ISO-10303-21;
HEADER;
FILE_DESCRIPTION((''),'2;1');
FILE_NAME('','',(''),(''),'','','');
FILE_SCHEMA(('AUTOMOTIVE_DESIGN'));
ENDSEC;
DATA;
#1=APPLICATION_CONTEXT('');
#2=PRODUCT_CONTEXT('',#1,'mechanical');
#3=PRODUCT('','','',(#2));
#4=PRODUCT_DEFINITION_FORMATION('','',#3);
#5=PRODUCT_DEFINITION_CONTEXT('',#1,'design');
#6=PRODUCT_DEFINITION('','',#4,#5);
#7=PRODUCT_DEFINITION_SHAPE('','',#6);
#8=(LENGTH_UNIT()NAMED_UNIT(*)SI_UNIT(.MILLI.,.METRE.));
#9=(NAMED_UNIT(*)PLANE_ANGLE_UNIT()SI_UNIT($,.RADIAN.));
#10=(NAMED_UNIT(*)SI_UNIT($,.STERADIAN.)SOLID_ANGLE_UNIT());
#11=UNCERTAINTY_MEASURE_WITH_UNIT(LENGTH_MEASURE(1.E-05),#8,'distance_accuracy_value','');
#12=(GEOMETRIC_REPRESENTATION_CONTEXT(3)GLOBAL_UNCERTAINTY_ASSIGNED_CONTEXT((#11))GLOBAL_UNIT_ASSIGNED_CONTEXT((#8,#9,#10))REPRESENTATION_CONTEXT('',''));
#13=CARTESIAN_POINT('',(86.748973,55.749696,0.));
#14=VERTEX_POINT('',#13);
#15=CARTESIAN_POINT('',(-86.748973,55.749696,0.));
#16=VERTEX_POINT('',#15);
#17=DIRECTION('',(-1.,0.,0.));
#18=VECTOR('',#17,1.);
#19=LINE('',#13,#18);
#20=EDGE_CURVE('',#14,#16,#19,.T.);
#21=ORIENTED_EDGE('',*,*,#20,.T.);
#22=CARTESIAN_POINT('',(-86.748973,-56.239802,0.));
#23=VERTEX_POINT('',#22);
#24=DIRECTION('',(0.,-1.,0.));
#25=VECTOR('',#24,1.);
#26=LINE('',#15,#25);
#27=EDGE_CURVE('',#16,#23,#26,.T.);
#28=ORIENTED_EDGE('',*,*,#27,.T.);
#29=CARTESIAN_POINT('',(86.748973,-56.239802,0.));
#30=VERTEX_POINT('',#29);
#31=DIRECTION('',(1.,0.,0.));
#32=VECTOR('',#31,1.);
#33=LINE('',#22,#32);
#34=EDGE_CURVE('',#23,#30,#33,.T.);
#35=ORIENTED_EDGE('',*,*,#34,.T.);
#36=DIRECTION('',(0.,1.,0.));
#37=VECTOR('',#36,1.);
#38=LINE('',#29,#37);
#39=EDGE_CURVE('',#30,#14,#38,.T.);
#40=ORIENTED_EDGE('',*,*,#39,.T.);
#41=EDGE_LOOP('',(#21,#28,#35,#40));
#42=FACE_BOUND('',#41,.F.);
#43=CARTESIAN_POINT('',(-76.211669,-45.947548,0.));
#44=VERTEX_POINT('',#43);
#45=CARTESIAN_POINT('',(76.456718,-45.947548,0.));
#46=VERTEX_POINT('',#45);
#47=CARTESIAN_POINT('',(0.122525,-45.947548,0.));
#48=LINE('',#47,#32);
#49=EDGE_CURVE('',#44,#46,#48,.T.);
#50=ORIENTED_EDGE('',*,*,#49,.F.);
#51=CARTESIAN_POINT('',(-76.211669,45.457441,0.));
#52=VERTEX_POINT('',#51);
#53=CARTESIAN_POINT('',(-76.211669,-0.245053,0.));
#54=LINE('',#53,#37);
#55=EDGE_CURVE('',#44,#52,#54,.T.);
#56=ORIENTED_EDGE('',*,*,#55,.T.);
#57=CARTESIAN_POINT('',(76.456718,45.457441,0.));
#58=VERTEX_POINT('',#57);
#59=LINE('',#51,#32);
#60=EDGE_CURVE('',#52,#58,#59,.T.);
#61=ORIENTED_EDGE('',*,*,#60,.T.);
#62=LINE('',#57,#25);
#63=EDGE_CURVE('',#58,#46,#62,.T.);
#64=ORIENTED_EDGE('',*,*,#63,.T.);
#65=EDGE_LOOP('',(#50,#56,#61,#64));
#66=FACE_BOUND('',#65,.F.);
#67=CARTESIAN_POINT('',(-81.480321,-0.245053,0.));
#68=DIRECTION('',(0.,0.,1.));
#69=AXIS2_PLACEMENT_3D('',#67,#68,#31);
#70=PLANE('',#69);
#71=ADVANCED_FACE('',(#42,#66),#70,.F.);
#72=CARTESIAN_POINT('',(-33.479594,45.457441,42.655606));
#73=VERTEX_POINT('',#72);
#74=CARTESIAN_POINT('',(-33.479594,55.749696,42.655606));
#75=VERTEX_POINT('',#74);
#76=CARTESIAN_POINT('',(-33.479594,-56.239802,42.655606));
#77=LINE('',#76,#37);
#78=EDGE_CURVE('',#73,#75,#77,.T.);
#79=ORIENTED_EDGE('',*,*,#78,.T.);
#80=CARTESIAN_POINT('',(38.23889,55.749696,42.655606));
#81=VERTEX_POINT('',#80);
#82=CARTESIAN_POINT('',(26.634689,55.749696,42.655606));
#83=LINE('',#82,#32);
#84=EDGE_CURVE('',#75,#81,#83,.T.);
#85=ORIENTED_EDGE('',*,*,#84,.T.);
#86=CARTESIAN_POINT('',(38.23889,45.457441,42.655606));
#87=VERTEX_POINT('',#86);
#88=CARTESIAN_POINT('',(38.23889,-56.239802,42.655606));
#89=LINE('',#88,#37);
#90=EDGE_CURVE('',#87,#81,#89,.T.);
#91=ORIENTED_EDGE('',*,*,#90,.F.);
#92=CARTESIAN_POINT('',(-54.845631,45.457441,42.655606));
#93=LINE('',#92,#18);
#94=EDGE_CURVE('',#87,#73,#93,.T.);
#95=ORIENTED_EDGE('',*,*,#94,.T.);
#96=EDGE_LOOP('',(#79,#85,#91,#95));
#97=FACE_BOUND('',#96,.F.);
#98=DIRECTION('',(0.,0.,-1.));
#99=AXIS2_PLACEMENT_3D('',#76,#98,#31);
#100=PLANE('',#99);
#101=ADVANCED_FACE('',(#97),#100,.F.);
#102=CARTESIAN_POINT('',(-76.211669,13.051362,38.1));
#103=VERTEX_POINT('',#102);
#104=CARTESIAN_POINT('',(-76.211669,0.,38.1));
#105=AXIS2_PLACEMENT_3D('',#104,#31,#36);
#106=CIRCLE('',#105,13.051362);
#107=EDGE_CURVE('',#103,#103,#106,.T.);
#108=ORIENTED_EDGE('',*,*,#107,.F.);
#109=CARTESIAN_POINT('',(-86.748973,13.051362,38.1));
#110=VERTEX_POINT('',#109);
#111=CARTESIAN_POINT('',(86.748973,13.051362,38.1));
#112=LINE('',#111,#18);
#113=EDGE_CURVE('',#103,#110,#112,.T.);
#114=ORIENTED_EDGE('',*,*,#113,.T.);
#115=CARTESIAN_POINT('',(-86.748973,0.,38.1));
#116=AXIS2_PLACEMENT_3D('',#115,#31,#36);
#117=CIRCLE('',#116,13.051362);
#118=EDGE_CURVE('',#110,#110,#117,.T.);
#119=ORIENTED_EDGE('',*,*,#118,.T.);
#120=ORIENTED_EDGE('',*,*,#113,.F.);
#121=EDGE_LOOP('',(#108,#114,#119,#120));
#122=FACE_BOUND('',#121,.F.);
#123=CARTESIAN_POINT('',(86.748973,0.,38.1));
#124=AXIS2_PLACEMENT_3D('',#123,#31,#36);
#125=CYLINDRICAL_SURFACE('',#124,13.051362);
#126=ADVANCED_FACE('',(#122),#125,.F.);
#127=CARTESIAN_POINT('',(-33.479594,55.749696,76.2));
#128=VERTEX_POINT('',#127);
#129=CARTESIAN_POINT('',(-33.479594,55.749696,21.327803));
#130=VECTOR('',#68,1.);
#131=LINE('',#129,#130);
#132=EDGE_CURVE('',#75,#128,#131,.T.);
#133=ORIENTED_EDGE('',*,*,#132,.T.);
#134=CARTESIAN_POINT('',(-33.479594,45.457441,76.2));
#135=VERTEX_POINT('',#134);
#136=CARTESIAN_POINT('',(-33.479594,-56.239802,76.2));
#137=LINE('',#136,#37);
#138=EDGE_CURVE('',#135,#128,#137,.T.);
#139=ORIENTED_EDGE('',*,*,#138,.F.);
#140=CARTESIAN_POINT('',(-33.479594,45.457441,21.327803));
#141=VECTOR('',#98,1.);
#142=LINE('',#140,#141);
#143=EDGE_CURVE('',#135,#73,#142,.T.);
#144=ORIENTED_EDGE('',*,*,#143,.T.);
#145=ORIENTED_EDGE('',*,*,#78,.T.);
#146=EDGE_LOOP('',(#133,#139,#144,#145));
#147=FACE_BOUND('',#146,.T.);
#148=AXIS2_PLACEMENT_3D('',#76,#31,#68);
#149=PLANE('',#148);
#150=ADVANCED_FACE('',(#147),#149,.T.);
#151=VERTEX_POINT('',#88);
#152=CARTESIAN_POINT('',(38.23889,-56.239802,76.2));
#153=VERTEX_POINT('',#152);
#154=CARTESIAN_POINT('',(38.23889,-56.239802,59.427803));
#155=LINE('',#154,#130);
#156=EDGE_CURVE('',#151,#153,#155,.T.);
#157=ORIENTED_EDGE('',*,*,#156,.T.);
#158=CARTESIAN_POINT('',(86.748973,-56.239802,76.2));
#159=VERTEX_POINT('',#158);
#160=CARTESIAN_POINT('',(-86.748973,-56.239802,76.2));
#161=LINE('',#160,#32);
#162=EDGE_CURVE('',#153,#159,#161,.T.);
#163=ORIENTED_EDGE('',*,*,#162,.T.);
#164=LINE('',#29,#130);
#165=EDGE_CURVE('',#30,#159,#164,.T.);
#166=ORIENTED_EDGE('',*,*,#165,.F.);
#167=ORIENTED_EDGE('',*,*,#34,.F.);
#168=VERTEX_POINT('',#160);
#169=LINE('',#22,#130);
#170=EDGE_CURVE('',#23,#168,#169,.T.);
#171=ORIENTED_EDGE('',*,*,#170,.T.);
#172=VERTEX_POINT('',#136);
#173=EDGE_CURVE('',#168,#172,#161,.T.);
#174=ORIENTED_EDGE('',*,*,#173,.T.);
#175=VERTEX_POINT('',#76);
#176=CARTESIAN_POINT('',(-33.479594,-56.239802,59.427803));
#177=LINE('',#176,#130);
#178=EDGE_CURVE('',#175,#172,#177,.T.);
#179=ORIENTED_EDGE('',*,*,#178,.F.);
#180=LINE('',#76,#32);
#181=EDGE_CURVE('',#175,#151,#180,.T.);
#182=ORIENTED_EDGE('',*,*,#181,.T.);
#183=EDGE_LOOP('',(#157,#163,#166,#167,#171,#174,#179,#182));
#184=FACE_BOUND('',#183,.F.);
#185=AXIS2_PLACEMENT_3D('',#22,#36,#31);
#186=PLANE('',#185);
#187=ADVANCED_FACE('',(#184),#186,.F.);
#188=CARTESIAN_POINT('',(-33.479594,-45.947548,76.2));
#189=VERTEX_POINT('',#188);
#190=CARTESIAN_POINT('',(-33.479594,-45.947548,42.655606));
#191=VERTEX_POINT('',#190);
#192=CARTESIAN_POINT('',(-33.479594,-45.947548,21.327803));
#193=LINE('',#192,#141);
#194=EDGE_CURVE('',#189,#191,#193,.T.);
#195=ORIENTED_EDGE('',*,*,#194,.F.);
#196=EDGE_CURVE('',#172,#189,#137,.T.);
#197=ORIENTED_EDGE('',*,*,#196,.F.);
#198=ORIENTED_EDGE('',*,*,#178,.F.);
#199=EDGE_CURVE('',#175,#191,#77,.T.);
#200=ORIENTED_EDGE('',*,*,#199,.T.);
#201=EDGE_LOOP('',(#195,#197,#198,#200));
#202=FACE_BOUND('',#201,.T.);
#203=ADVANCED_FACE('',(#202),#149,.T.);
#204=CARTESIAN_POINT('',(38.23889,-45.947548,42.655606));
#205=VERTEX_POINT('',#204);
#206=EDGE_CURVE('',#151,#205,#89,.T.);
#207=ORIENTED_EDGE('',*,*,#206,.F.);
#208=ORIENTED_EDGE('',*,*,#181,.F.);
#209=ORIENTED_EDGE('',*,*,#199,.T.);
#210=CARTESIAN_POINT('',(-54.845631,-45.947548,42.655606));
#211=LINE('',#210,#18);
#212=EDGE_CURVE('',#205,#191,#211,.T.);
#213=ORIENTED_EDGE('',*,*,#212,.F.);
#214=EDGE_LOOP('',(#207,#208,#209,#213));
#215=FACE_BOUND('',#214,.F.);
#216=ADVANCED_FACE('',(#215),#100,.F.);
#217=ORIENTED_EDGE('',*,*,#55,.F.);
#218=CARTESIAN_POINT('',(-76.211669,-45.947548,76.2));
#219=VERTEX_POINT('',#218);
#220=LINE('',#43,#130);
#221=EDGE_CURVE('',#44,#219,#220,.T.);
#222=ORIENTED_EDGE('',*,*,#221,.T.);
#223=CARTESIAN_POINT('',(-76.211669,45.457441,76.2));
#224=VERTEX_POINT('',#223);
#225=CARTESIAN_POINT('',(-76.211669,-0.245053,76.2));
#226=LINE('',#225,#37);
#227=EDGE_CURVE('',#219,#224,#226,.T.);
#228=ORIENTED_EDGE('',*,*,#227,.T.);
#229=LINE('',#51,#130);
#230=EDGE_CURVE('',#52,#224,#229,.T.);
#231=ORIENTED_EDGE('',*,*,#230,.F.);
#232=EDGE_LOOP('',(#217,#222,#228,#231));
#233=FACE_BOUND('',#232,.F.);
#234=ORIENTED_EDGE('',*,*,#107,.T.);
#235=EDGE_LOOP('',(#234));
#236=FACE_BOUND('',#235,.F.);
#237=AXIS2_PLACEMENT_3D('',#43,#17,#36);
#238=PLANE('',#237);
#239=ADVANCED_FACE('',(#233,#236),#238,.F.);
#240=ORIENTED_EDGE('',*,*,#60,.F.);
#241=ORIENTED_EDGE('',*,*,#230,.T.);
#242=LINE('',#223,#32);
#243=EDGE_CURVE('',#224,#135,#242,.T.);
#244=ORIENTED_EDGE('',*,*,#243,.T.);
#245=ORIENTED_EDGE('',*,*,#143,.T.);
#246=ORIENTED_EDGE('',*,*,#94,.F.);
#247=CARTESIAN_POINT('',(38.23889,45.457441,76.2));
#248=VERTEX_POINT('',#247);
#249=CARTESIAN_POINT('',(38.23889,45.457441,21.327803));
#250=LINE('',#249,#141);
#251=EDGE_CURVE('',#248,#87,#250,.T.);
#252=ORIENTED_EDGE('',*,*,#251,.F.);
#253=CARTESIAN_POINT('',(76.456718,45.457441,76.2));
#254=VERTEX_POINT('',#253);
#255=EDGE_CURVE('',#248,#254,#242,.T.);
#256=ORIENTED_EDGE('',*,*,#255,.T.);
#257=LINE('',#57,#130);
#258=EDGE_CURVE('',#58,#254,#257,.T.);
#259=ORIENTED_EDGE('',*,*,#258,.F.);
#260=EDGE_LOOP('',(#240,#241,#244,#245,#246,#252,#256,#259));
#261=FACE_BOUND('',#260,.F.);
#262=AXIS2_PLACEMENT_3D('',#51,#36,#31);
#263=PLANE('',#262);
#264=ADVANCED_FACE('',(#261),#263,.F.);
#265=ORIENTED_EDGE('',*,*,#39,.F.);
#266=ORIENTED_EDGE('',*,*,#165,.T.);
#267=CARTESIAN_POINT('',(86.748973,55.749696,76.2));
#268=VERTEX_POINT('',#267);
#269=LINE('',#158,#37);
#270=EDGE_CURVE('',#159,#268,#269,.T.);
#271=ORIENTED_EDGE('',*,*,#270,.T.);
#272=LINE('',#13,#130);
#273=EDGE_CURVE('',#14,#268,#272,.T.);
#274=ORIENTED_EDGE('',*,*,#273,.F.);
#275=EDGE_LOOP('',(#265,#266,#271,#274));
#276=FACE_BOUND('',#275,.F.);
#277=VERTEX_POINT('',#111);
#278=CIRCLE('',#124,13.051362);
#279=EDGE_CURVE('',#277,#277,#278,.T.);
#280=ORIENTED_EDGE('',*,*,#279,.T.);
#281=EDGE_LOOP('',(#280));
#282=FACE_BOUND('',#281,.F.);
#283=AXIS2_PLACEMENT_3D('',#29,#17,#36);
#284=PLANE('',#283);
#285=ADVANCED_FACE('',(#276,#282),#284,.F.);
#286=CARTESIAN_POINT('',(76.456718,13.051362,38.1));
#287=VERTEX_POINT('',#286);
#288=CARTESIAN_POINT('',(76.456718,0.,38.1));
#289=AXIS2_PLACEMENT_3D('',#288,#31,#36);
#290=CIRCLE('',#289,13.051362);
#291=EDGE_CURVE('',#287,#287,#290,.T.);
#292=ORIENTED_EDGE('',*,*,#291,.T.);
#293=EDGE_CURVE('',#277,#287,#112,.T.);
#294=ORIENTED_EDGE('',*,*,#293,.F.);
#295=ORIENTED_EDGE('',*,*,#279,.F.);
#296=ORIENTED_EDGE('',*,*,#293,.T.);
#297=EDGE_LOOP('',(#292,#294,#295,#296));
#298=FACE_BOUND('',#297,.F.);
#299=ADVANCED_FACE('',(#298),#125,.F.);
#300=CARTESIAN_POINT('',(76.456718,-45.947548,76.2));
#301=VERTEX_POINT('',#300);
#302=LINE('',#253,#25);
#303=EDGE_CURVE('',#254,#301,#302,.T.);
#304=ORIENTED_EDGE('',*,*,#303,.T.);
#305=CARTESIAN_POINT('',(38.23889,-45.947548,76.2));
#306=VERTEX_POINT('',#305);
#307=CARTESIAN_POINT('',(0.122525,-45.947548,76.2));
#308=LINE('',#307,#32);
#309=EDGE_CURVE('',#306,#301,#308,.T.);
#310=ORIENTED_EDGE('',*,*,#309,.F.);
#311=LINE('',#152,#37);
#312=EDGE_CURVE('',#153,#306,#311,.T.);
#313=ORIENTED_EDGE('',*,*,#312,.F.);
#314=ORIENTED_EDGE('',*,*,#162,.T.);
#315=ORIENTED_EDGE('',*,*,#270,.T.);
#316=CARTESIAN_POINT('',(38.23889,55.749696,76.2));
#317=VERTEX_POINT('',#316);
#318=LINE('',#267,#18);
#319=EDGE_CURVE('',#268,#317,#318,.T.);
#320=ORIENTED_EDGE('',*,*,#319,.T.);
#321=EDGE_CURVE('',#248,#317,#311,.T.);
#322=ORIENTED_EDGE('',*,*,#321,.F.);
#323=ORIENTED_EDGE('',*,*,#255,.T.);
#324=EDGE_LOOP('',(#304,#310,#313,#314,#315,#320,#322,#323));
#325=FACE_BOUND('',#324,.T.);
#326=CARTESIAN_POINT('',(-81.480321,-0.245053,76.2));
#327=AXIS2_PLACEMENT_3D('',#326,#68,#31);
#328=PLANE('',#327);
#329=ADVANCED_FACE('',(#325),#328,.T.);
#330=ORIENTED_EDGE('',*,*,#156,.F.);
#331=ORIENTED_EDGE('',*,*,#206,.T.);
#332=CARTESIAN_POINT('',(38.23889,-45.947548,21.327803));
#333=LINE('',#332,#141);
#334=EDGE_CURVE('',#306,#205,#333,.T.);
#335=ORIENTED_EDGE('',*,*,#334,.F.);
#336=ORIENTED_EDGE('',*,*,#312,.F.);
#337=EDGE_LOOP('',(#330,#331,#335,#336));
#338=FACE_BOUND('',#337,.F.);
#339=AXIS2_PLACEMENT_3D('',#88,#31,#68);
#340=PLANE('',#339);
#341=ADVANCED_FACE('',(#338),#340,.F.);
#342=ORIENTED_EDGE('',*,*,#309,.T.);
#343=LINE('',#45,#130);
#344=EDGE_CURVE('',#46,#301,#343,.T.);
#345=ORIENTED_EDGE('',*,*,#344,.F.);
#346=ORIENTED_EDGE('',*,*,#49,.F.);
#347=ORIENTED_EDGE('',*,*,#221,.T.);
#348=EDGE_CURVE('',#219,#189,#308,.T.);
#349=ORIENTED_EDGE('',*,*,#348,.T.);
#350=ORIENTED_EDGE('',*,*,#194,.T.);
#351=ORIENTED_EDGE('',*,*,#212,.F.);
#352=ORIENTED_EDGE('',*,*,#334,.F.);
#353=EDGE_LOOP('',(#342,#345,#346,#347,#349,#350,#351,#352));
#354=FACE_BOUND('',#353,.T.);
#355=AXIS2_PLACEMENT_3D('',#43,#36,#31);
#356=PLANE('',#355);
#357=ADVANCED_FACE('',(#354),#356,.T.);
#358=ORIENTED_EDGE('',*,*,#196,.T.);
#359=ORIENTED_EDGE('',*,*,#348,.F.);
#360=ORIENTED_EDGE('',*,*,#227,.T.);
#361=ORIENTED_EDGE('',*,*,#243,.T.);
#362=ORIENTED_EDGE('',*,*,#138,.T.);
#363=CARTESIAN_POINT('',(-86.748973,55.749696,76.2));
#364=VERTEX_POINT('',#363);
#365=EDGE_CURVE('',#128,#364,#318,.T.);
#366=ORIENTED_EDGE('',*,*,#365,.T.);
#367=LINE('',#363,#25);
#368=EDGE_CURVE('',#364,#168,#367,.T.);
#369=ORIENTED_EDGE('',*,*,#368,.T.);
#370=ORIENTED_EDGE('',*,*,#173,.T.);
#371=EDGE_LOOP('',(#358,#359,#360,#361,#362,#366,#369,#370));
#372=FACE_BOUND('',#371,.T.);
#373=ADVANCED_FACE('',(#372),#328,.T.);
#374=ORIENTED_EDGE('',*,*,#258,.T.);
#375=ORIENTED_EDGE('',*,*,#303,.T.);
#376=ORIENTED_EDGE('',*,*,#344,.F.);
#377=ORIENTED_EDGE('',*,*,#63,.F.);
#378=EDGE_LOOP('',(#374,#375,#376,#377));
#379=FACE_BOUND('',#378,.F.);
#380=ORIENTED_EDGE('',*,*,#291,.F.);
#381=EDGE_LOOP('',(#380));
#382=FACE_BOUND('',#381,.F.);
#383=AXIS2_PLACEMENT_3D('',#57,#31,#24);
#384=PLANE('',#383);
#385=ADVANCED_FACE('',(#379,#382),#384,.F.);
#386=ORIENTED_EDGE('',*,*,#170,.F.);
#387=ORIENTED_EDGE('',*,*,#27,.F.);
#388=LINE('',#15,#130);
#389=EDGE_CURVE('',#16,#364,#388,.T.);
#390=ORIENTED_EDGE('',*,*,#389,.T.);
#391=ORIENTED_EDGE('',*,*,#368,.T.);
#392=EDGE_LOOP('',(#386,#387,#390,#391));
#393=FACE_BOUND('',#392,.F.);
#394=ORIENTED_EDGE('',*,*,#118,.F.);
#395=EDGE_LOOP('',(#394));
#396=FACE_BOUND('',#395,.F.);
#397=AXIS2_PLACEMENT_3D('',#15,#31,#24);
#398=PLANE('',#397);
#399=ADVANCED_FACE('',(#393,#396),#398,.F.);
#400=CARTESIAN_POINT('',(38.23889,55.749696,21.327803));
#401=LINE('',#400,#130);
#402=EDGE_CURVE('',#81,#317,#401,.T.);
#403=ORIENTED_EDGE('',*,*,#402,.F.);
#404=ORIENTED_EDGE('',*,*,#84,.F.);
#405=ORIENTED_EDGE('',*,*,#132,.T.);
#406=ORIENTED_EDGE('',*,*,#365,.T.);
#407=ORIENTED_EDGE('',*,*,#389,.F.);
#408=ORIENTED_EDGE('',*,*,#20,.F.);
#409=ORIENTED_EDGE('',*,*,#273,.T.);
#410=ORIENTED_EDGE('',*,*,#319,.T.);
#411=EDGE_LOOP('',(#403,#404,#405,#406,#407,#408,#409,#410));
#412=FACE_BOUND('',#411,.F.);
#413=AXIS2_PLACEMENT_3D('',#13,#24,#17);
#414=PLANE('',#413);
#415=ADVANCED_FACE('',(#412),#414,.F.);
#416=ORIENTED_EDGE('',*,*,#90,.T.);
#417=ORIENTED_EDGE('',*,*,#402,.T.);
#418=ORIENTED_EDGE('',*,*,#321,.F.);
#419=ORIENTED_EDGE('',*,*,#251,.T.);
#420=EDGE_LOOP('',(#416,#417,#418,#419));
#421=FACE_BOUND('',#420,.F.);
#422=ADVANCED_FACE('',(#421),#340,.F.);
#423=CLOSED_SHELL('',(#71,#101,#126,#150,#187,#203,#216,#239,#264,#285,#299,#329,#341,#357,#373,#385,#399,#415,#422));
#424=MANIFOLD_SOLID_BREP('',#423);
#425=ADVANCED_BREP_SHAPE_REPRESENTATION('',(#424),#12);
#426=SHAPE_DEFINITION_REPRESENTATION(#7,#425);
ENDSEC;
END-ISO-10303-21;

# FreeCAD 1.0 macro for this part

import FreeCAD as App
import Part
import Sketcher
from FreeCAD import Vector
Q = App.Units.Quantity


def add_polygon(sketch, points):
    """Adds a closed chain of lines whose ends are joined by coincident constraints."""
    first, n = sketch.GeometryCount, len(points)
    for a, b in zip(points, points[1:] + points[:1]):
        sketch.addGeometry(Part.LineSegment(App.Vector(*a, 0), App.Vector(*b, 0)), False)
    for i in range(n):
        sketch.addConstraint(Sketcher.Constraint("Coincident", first + i, 2, first + (i + 1) % n, 1))

doc = App.newDocument("Part")
body = doc.addObject("PartDesign::Body", "Body")

sketch1 = body.newObject("Sketcher::SketchObject", "Sketch")
sketch1.AttachmentSupport = (doc.getObject("XY_Plane"), [""])
sketch1.MapMode = "FlatFace"
add_polygon(sketch1, [(-87, 56), (-87, -56), (87, -56), (87, 56)])
add_polygon(sketch1, [(76, -46), (-76, -46), (-76, 45), (76, 45)])
sketch1.addConstraint([
    Sketcher.Constraint("Vertical", 0),
    Sketcher.Constraint("Horizontal", 1),
    Sketcher.Constraint("Vertical", 2),
    Sketcher.Constraint("Horizontal", 3),
    Sketcher.Constraint("Horizontal", 4),
    Sketcher.Constraint("Vertical", 5),
    Sketcher.Constraint("Horizontal", 6),
    Sketcher.Constraint("Vertical", 7),
    Sketcher.Constraint("DistanceY", 0, 2, 0, 1, Q("111.989498 mm")),
    Sketcher.Constraint("DistanceY", 5, 1, 5, 2, Q("91.404989 mm")),
    Sketcher.Constraint("DistanceX", 1, 1, 1, 2, Q("173.497945 mm")),
    Sketcher.Constraint("DistanceX", 4, 2, 4, 1, Q("152.668387 mm")),
    Sketcher.Constraint("DistanceX", 4, 2, -1, 1, Q("76.211669 mm")),
    Sketcher.Constraint("DistanceY", 4, 2, -1, 1, Q("45.947548 mm")),
    Sketcher.Constraint("DistanceX", 4, 2, 1, 2, Q("162.960641 mm")),
    Sketcher.Constraint("DistanceY", 0, 2, -1, 1, Q("56.239802 mm")),
])
pad1 = body.newObject("PartDesign::Pad", "Pad")
pad1.Profile = sketch1
pad1.Length = Q("3 in")

sketch2 = body.newObject("Sketcher::SketchObject", "Sketch001")
sketch2.AttachmentSupport = (doc.getObject("XZ_Plane"), [""])
sketch2.MapMode = "FlatFace"
sketch2.AttachmentOffset = App.Placement(Vector(0, 0, 56.239802), App.Rotation())
add_polygon(sketch2, [(38, 43), (38, 76), (-33, 76), (-33, 43)])
sketch2.addConstraint([
    Sketcher.Constraint("Vertical", 0),
    Sketcher.Constraint("Horizontal", 1),
    Sketcher.Constraint("Vertical", 2),
    Sketcher.Constraint("Horizontal", 3),
    Sketcher.Constraint("DistanceY", -1, 1, 0, 2, Q("3 in")),
    Sketcher.Constraint("DistanceX", 1, 2, 1, 1, Q("71.718484 mm")),
    Sketcher.Constraint("DistanceY", 0, 1, 0, 2, Q("33.544394 mm")),
    Sketcher.Constraint("DistanceX", -1, 1, 0, 2, Q("38.23889 mm")),
])
pocket1 = body.newObject("PartDesign::Pocket", "Pocket")
pocket1.Profile = sketch2
pocket1.Type = "ThroughAll"

sketch3 = body.newObject("Sketcher::SketchObject", "Sketch002")
sketch3.AttachmentSupport = (doc.getObject("YZ_Plane"), [""])
sketch3.MapMode = "FlatFace"
sketch3.AttachmentOffset = App.Placement(Vector(0, 0, 86.748973), App.Rotation())
sketch3.addGeometry(Part.Circle(Vector(0, 38, 0), Vector(0, 0, 1), 13), False)
sketch3.addConstraint([
    Sketcher.Constraint("PointOnObject", 0, 3, -2),
    Sketcher.Constraint("DistanceY", -1, 1, 0, 3, Q("1.5 in")),
    Sketcher.Constraint("Diameter", 0, Q("26.102724 mm")),
])
pocket2 = body.newObject("PartDesign::Pocket", "Pocket001")
pocket2.Profile = sketch3
pocket2.Type = "ThroughAll"

doc.recompute()
